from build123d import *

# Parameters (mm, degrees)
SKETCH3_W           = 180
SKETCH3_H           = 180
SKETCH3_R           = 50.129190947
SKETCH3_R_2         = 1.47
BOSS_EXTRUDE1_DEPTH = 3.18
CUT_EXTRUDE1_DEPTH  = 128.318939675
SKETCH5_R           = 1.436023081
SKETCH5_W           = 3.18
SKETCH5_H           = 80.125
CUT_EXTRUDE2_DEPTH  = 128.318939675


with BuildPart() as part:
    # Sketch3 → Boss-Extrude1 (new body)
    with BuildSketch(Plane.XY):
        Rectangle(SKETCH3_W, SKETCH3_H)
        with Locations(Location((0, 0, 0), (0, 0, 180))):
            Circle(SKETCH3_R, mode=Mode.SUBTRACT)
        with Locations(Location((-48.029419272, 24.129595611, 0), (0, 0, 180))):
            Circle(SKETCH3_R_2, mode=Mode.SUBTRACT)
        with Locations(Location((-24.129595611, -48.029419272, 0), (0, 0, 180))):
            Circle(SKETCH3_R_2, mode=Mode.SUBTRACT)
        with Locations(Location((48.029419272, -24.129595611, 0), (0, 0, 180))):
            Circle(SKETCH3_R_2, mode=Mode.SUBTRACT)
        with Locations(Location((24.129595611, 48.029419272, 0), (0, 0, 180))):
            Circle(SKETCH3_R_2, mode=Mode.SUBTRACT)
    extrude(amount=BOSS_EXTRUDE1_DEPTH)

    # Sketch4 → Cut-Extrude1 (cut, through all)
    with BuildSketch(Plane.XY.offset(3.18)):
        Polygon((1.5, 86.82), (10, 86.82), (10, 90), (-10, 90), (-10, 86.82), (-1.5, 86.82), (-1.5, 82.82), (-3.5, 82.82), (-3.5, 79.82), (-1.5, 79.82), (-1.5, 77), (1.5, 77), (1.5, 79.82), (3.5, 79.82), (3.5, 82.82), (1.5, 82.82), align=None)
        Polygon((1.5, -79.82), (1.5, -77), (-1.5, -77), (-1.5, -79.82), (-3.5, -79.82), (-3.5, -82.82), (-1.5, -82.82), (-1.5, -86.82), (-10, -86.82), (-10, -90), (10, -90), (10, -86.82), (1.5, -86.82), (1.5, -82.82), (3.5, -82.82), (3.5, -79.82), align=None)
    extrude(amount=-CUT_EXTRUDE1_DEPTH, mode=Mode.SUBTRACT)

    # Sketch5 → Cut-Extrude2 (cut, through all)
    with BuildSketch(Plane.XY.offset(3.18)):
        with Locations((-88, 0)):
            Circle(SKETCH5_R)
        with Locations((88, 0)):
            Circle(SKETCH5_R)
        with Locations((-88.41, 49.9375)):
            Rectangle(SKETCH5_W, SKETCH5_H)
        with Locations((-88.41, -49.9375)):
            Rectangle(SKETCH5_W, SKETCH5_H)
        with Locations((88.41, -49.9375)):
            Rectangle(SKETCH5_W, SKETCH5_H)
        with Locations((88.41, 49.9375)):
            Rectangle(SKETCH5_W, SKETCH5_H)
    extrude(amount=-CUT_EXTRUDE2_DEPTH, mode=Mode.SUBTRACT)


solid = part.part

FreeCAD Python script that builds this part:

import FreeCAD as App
import Part
import Sketcher
from FreeCAD import Vector
Q = App.Units.Quantity

doc = App.newDocument("Part")
body = doc.addObject("PartDesign::Body", "Body")

# Sketch on XY plane
sketch1 = body.newObject("Sketcher::SketchObject", "Sketch")
sketch1.AttachmentSupport = (doc.getObject("XY_Plane"), [""])
sketch1.MapMode = "FlatFace"
sketch1.addGeometry([
    Part.LineSegment(Vector(-90, 90, 0), Vector(-90, -90, 0)),  # 0
    Part.LineSegment(Vector(-90, -90, 0), Vector(90, -90, 0)),  # 1
    Part.LineSegment(Vector(90, -90, 0), Vector(90, 90, 0)),  # 2
    Part.LineSegment(Vector(90, 90, 0), Vector(-90, 90, 0)),  # 3
    Part.Circle(Vector(-24.129596, -48.029419, 0), Vector(0, 0, 1), 1.47),  # 4
    Part.Circle(Vector(48.029419, -24.129596, 0), Vector(0, 0, 1), 1.47),  # 5
    Part.Circle(Vector(-48.029419, 24.129596, 0), Vector(0, 0, 1), 1.47),  # 6
    Part.Circle(Vector(0, 0, 0), Vector(0, 0, 1), 50.129191),  # 7
    Part.Circle(Vector(24.129596, 48.029419, 0), Vector(0, 0, 1), 1.47),  # 8
], False)
sketch1.addConstraint([
    Sketcher.Constraint("Coincident", 0, 2, 1, 1),
    Sketcher.Constraint("Coincident", 1, 2, 2, 1),
    Sketcher.Constraint("Coincident", 2, 2, 3, 1),
    Sketcher.Constraint("Coincident", 3, 2, 0, 1),
    Sketcher.Constraint("Vertical", 0),
    Sketcher.Constraint("Horizontal", 1),
    Sketcher.Constraint("Vertical", 2),
    Sketcher.Constraint("Horizontal", 3),
    Sketcher.Constraint("Coincident", 7, 3, -1, 1),
    Sketcher.Constraint("Equal", 4, 5),
    Sketcher.Constraint("Equal", 5, 6),
    Sketcher.Constraint("Equal", 6, 8),
    Sketcher.Constraint("Symmetric", 5, 3, 6, 3, -1, 1),
    Sketcher.Constraint("Symmetric", 4, 3, 8, 3, -1, 1),
    Sketcher.Constraint("Symmetric", 0, 2, 2, 2, -1, 1),
    Sketcher.Constraint("Equal", 3, 0),
    Sketcher.Constraint("Diameter", 4, Q("2.94 mm")),
    Sketcher.Constraint("DistanceX", 1, 1, 1, 2, Q("180 mm")),
    Sketcher.Constraint("Diameter", 7, Q("100.258382 mm")),
    Sketcher.Constraint("DistanceY", 4, 3, -1, 1, Q("48.029419 mm")),
    Sketcher.Constraint("DistanceX", -1, 1, 5, 3, Q("48.029419 mm")),
    Sketcher.Constraint("DistanceY", 5, 3, 6, 3, Q("48.259191 mm")),
    Sketcher.Constraint("DistanceX", 4, 3, 8, 3, Q("48.259191 mm")),
])
pad1 = body.newObject("PartDesign::Pad", "Pad")
pad1.Profile = sketch1
pad1.Length = 3.18

# Sketch on XY plane
sketch2 = body.newObject("Sketcher::SketchObject", "Sketch001")
sketch2.AttachmentSupport = (doc.getObject("XY_Plane"), [""])
sketch2.MapMode = "FlatFace"
sketch2.AttachmentOffset = App.Placement(Vector(0, 0, 3.18), App.Rotation())
sketch2.addGeometry([
    Part.LineSegment(Vector(1.5, 86.82, 0), Vector(10, 86.82, 0)),  # 0
    Part.LineSegment(Vector(10, 86.82, 0), Vector(10, 90, 0)),  # 1
    Part.LineSegment(Vector(10, 90, 0), Vector(-10, 90, 0)),  # 2
    Part.LineSegment(Vector(-10, 90, 0), Vector(-10, 86.82, 0)),  # 3
    Part.LineSegment(Vector(-10, 86.82, 0), Vector(-1.5, 86.82, 0)),  # 4
    Part.LineSegment(Vector(-1.5, 86.82, 0), Vector(-1.5, 82.82, 0)),  # 5
    Part.LineSegment(Vector(-1.5, 82.82, 0), Vector(-3.5, 82.82, 0)),  # 6
    Part.LineSegment(Vector(-3.5, 82.82, 0), Vector(-3.5, 79.82, 0)),  # 7
    Part.LineSegment(Vector(-3.5, 79.82, 0), Vector(-1.5, 79.82, 0)),  # 8
    Part.LineSegment(Vector(-1.5, 79.82, 0), Vector(-1.5, 77, 0)),  # 9
    Part.LineSegment(Vector(-1.5, 77, 0), Vector(1.5, 77, 0)),  # 10
    Part.LineSegment(Vector(1.5, 77, 0), Vector(1.5, 79.82, 0)),  # 11
    Part.LineSegment(Vector(1.5, 79.82, 0), Vector(3.5, 79.82, 0)),  # 12
    Part.LineSegment(Vector(3.5, 79.82, 0), Vector(3.5, 82.82, 0)),  # 13
    Part.LineSegment(Vector(3.5, 82.82, 0), Vector(1.5, 82.82, 0)),  # 14
    Part.LineSegment(Vector(1.5, 82.82, 0), Vector(1.5, 86.82, 0)),  # 15
    Part.LineSegment(Vector(1.5, -79.82, 0), Vector(1.5, -77, 0)),  # 16
    Part.LineSegment(Vector(1.5, -77, 0), Vector(-1.5, -77, 0)),  # 17
    Part.LineSegment(Vector(-1.5, -77, 0), Vector(-1.5, -79.82, 0)),  # 18
    Part.LineSegment(Vector(-1.5, -79.82, 0), Vector(-3.5, -79.82, 0)),  # 19
    Part.LineSegment(Vector(-3.5, -79.82, 0), Vector(-3.5, -82.82, 0)),  # 20
    Part.LineSegment(Vector(-3.5, -82.82, 0), Vector(-1.5, -82.82, 0)),  # 21
    Part.LineSegment(Vector(-1.5, -82.82, 0), Vector(-1.5, -86.82, 0)),  # 22
    Part.LineSegment(Vector(-1.5, -86.82, 0), Vector(-10, -86.82, 0)),  # 23
    Part.LineSegment(Vector(-10, -86.82, 0), Vector(-10, -90, 0)),  # 24
    Part.LineSegment(Vector(-10, -90, 0), Vector(10, -90, 0)),  # 25
    Part.LineSegment(Vector(10, -90, 0), Vector(10, -86.82, 0)),  # 26
    Part.LineSegment(Vector(10, -86.82, 0), Vector(1.5, -86.82, 0)),  # 27
    Part.LineSegment(Vector(1.5, -86.82, 0), Vector(1.5, -82.82, 0)),  # 28
    Part.LineSegment(Vector(1.5, -82.82, 0), Vector(3.5, -82.82, 0)),  # 29
    Part.LineSegment(Vector(3.5, -82.82, 0), Vector(3.5, -79.82, 0)),  # 30
    Part.LineSegment(Vector(3.5, -79.82, 0), Vector(1.5, -79.82, 0)),  # 31
], False)
sketch2.addConstraint([
    Sketcher.Constraint("Coincident", 0, 2, 1, 1),
    Sketcher.Constraint("Coincident", 1, 2, 2, 1),
    Sketcher.Constraint("Coincident", 2, 2, 3, 1),
    Sketcher.Constraint("Coincident", 3, 2, 4, 1),
    Sketcher.Constraint("Coincident", 4, 2, 5, 1),
    Sketcher.Constraint("Coincident", 5, 2, 6, 1),
    Sketcher.Constraint("Coincident", 6, 2, 7, 1),
    Sketcher.Constraint("Coincident", 7, 2, 8, 1),
    Sketcher.Constraint("Coincident", 8, 2, 9, 1),
    Sketcher.Constraint("Coincident", 9, 2, 10, 1),
    Sketcher.Constraint("Coincident", 10, 2, 11, 1),
    Sketcher.Constraint("Coincident", 11, 2, 12, 1),
    Sketcher.Constraint("Coincident", 12, 2, 13, 1),
    Sketcher.Constraint("Coincident", 13, 2, 14, 1),
    Sketcher.Constraint("Coincident", 14, 2, 15, 1),
    Sketcher.Constraint("Coincident", 15, 2, 0, 1),
    Sketcher.Constraint("Coincident", 16, 2, 17, 1),
    Sketcher.Constraint("Coincident", 17, 2, 18, 1),
    Sketcher.Constraint("Coincident", 18, 2, 19, 1),
    Sketcher.Constraint("Coincident", 19, 2, 20, 1),
    Sketcher.Constraint("Coincident", 20, 2, 21, 1),
    Sketcher.Constraint("Coincident", 21, 2, 22, 1),
    Sketcher.Constraint("Coincident", 22, 2, 23, 1),
    Sketcher.Constraint("Coincident", 23, 2, 24, 1),
    Sketcher.Constraint("Coincident", 24, 2, 25, 1),
    Sketcher.Constraint("Coincident", 25, 2, 26, 1),
    Sketcher.Constraint("Coincident", 26, 2, 27, 1),
    Sketcher.Constraint("Coincident", 27, 2, 28, 1),
    Sketcher.Constraint("Coincident", 28, 2, 29, 1),
    Sketcher.Constraint("Coincident", 29, 2, 30, 1),
    Sketcher.Constraint("Coincident", 30, 2, 31, 1),
    Sketcher.Constraint("Coincident", 31, 2, 16, 1),
    Sketcher.Constraint("Horizontal", 0),
    Sketcher.Constraint("Vertical", 1),
    Sketcher.Constraint("Horizontal", 2),
    Sketcher.Constraint("Vertical", 3),
    Sketcher.Constraint("Horizontal", 4),
    Sketcher.Constraint("Vertical", 5),
    Sketcher.Constraint("Horizontal", 6),
    Sketcher.Constraint("Vertical", 7),
    Sketcher.Constraint("Horizontal", 8),
    Sketcher.Constraint("Vertical", 9),
    Sketcher.Constraint("Horizontal", 10),
    Sketcher.Constraint("Vertical", 11),
    Sketcher.Constraint("Horizontal", 12),
    Sketcher.Constraint("Vertical", 13),
    Sketcher.Constraint("Horizontal", 14),
    Sketcher.Constraint("Vertical", 15),
    Sketcher.Constraint("Vertical", 16),
    Sketcher.Constraint("Horizontal", 17),
    Sketcher.Constraint("Vertical", 18),
    Sketcher.Constraint("Horizontal", 19),
    Sketcher.Constraint("Vertical", 20),
    Sketcher.Constraint("Horizontal", 21),
    Sketcher.Constraint("Vertical", 22),
    Sketcher.Constraint("Horizontal", 23),
    Sketcher.Constraint("Vertical", 24),
    Sketcher.Constraint("Horizontal", 25),
    Sketcher.Constraint("Vertical", 26),
    Sketcher.Constraint("Horizontal", 27),
    Sketcher.Constraint("Vertical", 28),
    Sketcher.Constraint("Horizontal", 29),
    Sketcher.Constraint("Vertical", 30),
    Sketcher.Constraint("Horizontal", 31),
    Sketcher.Constraint("Symmetric", 9, 2, 16, 2, -1, 1),
    Sketcher.Constraint("Symmetric", 11, 2, 18, 2, -1, 1),
    Sketcher.Constraint("Symmetric", 13, 2, 20, 2, -1, 1),
    Sketcher.Constraint("Symmetric", 15, 2, 22, 2, -1, 1),
    Sketcher.Constraint("Symmetric", 1, 2, 24, 2, -1, 1),
    Sketcher.Constraint("Symmetric", 3, 2, 26, 2, -1, 1),
    Sketcher.Constraint("Symmetric", 5, 2, 28, 2, -1, 1),
    Sketcher.Constraint("Symmetric", 7, 2, 30, 2, -1, 1),
    Sketcher.Constraint("Symmetric", 0, 2, 3, 2, -2),
    Sketcher.Constraint("Symmetric", 8, 2, 11, 2, -2),
    Sketcher.Constraint("Symmetric", 6, 2, 13, 2, -2),
    Sketcher.Constraint("Vertical", 5, 2, 8, 2),
    Sketcher.Constraint("Vertical", 11, 2, 14, 2),
    Sketcher.Constraint("Equal", 17, 7),
    Sketcher.Constraint("DistanceX", 2, 2, 2, 1, Q("20 mm")),
    Sketcher.Constraint("DistanceX", 6, 2, 6, 1, Q("2 mm")),
    Sketcher.Constraint("DistanceX", 10, 1, 10, 2, Q("3 mm")),
    Sketcher.Constraint("DistanceY", 5, 2, 5, 1, Q("4 mm")),
    Sketcher.Constraint("DistanceY", -1, 1, 1, 2, Q("90 mm")),
    Sketcher.Constraint("DistanceY", -1, 1, 9, 2, Q("77 mm")),
    Sketcher.Constraint("DistanceY", 1, 1, 1, 2, Q("3.18 mm")),
])
pocket1 = body.newObject("PartDesign::Pocket", "Pocket")
pocket1.Profile = sketch2
pocket1.Type = "ThroughAll"

# Sketch on XY plane
sketch3 = body.newObject("Sketcher::SketchObject", "Sketch002")
sketch3.AttachmentSupport = (doc.getObject("XY_Plane"), [""])
sketch3.MapMode = "FlatFace"
sketch3.AttachmentOffset = App.Placement(Vector(0, 0, 3.18), App.Rotation())
sketch3.addGeometry([
    Part.Circle(Vector(-88, 0, 0), Vector(0, 0, 1), 1.436023),  # 0
    Part.Circle(Vector(88, 0, 0), Vector(0, 0, 1), 1.436023),  # 1
    Part.LineSegment(Vector(-90, 90, 0), Vector(-90, 9.875, 0)),  # 2
    Part.LineSegment(Vector(-90, 9.875, 0), Vector(-86.82, 9.875, 0)),  # 3
    Part.LineSegment(Vector(-86.82, 9.875, 0), Vector(-86.82, 90, 0)),  # 4
    Part.LineSegment(Vector(-86.82, 90, 0), Vector(-90, 90, 0)),  # 5
    Part.LineSegment(Vector(-90, -9.875, 0), Vector(-90, -90, 0)),  # 6
    Part.LineSegment(Vector(-90, -90, 0), Vector(-86.82, -90, 0)),  # 7
    Part.LineSegment(Vector(-86.82, -90, 0), Vector(-86.82, -9.875, 0)),  # 8
    Part.LineSegment(Vector(-86.82, -9.875, 0), Vector(-90, -9.875, 0)),  # 9
    Part.LineSegment(Vector(86.82, -9.875, 0), Vector(86.82, -90, 0)),  # 10
    Part.LineSegment(Vector(86.82, -90, 0), Vector(90, -90, 0)),  # 11
    Part.LineSegment(Vector(90, -90, 0), Vector(90, -9.875, 0)),  # 12
    Part.LineSegment(Vector(90, -9.875, 0), Vector(86.82, -9.875, 0)),  # 13
    Part.LineSegment(Vector(86.82, 90, 0), Vector(86.82, 9.875, 0)),  # 14
    Part.LineSegment(Vector(86.82, 9.875, 0), Vector(90, 9.875, 0)),  # 15
    Part.LineSegment(Vector(90, 9.875, 0), Vector(90, 90, 0)),  # 16
    Part.LineSegment(Vector(90, 90, 0), Vector(86.82, 90, 0)),  # 17
], False)
sketch3.addConstraint([
    Sketcher.Constraint("Coincident", 2, 2, 3, 1),
    Sketcher.Constraint("Coincident", 3, 2, 4, 1),
    Sketcher.Constraint("Coincident", 4, 2, 5, 1),
    Sketcher.Constraint("Coincident", 5, 2, 2, 1),
    Sketcher.Constraint("Coincident", 6, 2, 7, 1),
    Sketcher.Constraint("Coincident", 7, 2, 8, 1),
    Sketcher.Constraint("Coincident", 8, 2, 9, 1),
    Sketcher.Constraint("Coincident", 9, 2, 6, 1),
    Sketcher.Constraint("Coincident", 10, 2, 11, 1),
    Sketcher.Constraint("Coincident", 11, 2, 12, 1),
    Sketcher.Constraint("Coincident", 12, 2, 13, 1),
    Sketcher.Constraint("Coincident", 13, 2, 10, 1),
    Sketcher.Constraint("Coincident", 14, 2, 15, 1),
    Sketcher.Constraint("Coincident", 15, 2, 16, 1),
    Sketcher.Constraint("Coincident", 16, 2, 17, 1),
    Sketcher.Constraint("Coincident", 17, 2, 14, 1),
    Sketcher.Constraint("Vertical", 2),
    Sketcher.Constraint("Horizontal", 3),
    Sketcher.Constraint("Vertical", 4),
    Sketcher.Constraint("Horizontal", 5),
    Sketcher.Constraint("Vertical", 6),
    Sketcher.Constraint("Horizontal", 7),
    Sketcher.Constraint("Vertical", 8),
    Sketcher.Constraint("Horizontal", 9),
    Sketcher.Constraint("Vertical", 10),
    Sketcher.Constraint("Horizontal", 11),
    Sketcher.Constraint("Vertical", 12),
    Sketcher.Constraint("Horizontal", 13),
    Sketcher.Constraint("Vertical", 14),
    Sketcher.Constraint("Horizontal", 15),
    Sketcher.Constraint("Vertical", 16),
    Sketcher.Constraint("Horizontal", 17),
    Sketcher.Constraint("Equal", 0, 1),
    Sketcher.Constraint("Symmetric", 0, 3, 1, 3, -1, 1),
    Sketcher.Constraint("Symmetric", 4, 2, 10, 2, -1, 1),
    Sketcher.Constraint("Symmetric", 2, 2, 12, 2, -1, 1),
    Sketcher.Constraint("Symmetric", 8, 2, 14, 2, -1, 1),
    Sketcher.Constraint("Symmetric", 6, 2, 16, 2, -1, 1),
    Sketcher.Constraint("Symmetric", 7, 2, 10, 2, -2),
    Sketcher.Constraint("Symmetric", 9, 2, 12, 2, -2),
    Sketcher.Constraint("PointOnObject", 0, 3, -1),
    Sketcher.Constraint("DistanceX", 0, 3, -1, 1, Q("88 mm")),
    Sketcher.Constraint("DistanceX", 2, 2, -1, 1, Q("90 mm")),
    Sketcher.Constraint("DistanceY", -1, 1, 4, 2, Q("90 mm")),
    Sketcher.Constraint("DistanceX", 3, 1, 3, 2, Q("3.18 mm")),
    Sketcher.Constraint("DistanceY", 2, 2, 2, 1, Q("80.125 mm")),
    Sketcher.Constraint("Diameter", 0, Q("2.872046 mm")),
])
pocket2 = body.newObject("PartDesign::Pocket", "Pocket001")
pocket2.Profile = sketch3
pocket2.Type = "ThroughAll"

doc.recompute()
